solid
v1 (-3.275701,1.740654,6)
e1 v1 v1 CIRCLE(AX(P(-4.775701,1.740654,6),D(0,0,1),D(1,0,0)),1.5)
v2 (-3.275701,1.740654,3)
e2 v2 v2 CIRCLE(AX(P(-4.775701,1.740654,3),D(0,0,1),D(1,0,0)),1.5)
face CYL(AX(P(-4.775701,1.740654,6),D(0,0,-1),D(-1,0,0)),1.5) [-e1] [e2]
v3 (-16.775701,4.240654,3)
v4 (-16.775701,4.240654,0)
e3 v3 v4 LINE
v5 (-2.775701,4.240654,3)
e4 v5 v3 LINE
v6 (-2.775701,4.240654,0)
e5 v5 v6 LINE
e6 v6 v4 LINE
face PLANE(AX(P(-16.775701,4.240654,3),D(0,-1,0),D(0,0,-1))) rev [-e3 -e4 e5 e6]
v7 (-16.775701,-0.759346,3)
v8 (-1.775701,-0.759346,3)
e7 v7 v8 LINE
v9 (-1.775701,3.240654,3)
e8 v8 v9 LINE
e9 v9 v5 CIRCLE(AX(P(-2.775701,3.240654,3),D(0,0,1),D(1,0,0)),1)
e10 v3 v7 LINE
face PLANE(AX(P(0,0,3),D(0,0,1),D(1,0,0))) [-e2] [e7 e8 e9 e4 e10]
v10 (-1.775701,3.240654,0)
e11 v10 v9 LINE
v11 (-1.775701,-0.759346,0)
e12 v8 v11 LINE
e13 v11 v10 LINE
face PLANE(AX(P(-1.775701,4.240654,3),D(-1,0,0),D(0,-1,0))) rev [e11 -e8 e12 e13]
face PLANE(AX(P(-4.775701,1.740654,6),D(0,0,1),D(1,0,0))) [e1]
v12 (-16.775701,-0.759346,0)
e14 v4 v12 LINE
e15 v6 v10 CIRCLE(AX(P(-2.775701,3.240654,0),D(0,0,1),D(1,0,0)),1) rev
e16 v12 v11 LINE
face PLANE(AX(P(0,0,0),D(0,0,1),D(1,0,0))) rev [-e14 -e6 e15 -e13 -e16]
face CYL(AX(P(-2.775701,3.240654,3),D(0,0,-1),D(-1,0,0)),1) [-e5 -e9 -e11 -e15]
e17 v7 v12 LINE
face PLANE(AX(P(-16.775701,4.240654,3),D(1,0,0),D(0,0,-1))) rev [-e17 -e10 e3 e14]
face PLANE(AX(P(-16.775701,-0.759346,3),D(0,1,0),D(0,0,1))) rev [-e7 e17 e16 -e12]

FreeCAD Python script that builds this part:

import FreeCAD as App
import Part
import Sketcher


def edges_at(feature, points):
    """Names of the edges that pass closest to the given points."""
    edges = feature.Shape.Edges
    near = lambda p: min(range(len(edges)), key=lambda i: edges[i].distToShape(Part.Vertex(*p))[0])
    return sorted({f"Edge{near(p) + 1}" for p in points})


def add_polygon(sketch, points):
    """Adds a closed chain of lines whose ends are joined by coincident constraints."""
    first, n = sketch.GeometryCount, len(points)
    for a, b in zip(points, points[1:] + points[:1]):
        sketch.addGeometry(Part.LineSegment(App.Vector(*a, 0), App.Vector(*b, 0)), False)
    for i in range(n):
        sketch.addConstraint(Sketcher.Constraint("Coincident", first + i, 2, first + (i + 1) % n, 1))

doc = App.newDocument("Part")
body = doc.addObject("PartDesign::Body", "Body")

sketch1 = body.newObject("Sketcher::SketchObject", "Sketch")
sketch1.AttachmentSupport = (doc.getObject("XY_Plane"), [""])
sketch1.MapMode = "FlatFace"
add_polygon(sketch1, [(-16.775701, 4.240654), (-16.775701, -0.759346), (-1.775701, -0.759346), (-1.775701, 4.240654)])
sketch1.addConstraint([
    Sketcher.Constraint("Vertical", 0),
    Sketcher.Constraint("Horizontal", 1),
    Sketcher.Constraint("Vertical", 2),
    Sketcher.Constraint("Horizontal", 3),
    Sketcher.Constraint("DistanceX", 1, 1, 1, 2, 15.0),
    Sketcher.Constraint("DistanceY", 0, 2, 0, 1, 5.0),
    Sketcher.Constraint("DistanceX", 0, 2, -1, 1, 16.775701),
    Sketcher.Constraint("DistanceY", 0, 2, -1, 1, 0.759346),
])
pad1 = body.newObject("PartDesign::Pad", "Pad")
pad1.Profile = sketch1
pad1.Length = 3

sketch2 = body.newObject("Sketcher::SketchObject", "Sketch001")
sketch2.AttachmentSupport = (doc.getObject("XY_Plane"), [""])
sketch2.MapMode = "FlatFace"
sketch2.AttachmentOffset = App.Placement(App.Vector(0, 0, 3), App.Rotation())
sketch2.addGeometry(Part.Circle(App.Vector(-4.775701, 1.740654, 0), App.Vector(0, 0, 1), 1.5), False)
sketch2.addConstraint([
    Sketcher.Constraint("Diameter", 0, 3.0),
    Sketcher.Constraint("DistanceX", 0, 3, -1, 1, 4.775701),
    Sketcher.Constraint("DistanceY", -1, 1, 0, 3, 1.740654),
])
pad2 = body.newObject("PartDesign::Pad", "Pad001")
pad2.Profile = sketch2
pad2.Length = 3
doc.recompute()

fillet = body.newObject("PartDesign::Fillet", "Fillet")
fillet.Base = (pad2, edges_at(pad2, [(-1.776, 4.241, 1.5)]))
fillet.Radius = 1

doc.recompute()
